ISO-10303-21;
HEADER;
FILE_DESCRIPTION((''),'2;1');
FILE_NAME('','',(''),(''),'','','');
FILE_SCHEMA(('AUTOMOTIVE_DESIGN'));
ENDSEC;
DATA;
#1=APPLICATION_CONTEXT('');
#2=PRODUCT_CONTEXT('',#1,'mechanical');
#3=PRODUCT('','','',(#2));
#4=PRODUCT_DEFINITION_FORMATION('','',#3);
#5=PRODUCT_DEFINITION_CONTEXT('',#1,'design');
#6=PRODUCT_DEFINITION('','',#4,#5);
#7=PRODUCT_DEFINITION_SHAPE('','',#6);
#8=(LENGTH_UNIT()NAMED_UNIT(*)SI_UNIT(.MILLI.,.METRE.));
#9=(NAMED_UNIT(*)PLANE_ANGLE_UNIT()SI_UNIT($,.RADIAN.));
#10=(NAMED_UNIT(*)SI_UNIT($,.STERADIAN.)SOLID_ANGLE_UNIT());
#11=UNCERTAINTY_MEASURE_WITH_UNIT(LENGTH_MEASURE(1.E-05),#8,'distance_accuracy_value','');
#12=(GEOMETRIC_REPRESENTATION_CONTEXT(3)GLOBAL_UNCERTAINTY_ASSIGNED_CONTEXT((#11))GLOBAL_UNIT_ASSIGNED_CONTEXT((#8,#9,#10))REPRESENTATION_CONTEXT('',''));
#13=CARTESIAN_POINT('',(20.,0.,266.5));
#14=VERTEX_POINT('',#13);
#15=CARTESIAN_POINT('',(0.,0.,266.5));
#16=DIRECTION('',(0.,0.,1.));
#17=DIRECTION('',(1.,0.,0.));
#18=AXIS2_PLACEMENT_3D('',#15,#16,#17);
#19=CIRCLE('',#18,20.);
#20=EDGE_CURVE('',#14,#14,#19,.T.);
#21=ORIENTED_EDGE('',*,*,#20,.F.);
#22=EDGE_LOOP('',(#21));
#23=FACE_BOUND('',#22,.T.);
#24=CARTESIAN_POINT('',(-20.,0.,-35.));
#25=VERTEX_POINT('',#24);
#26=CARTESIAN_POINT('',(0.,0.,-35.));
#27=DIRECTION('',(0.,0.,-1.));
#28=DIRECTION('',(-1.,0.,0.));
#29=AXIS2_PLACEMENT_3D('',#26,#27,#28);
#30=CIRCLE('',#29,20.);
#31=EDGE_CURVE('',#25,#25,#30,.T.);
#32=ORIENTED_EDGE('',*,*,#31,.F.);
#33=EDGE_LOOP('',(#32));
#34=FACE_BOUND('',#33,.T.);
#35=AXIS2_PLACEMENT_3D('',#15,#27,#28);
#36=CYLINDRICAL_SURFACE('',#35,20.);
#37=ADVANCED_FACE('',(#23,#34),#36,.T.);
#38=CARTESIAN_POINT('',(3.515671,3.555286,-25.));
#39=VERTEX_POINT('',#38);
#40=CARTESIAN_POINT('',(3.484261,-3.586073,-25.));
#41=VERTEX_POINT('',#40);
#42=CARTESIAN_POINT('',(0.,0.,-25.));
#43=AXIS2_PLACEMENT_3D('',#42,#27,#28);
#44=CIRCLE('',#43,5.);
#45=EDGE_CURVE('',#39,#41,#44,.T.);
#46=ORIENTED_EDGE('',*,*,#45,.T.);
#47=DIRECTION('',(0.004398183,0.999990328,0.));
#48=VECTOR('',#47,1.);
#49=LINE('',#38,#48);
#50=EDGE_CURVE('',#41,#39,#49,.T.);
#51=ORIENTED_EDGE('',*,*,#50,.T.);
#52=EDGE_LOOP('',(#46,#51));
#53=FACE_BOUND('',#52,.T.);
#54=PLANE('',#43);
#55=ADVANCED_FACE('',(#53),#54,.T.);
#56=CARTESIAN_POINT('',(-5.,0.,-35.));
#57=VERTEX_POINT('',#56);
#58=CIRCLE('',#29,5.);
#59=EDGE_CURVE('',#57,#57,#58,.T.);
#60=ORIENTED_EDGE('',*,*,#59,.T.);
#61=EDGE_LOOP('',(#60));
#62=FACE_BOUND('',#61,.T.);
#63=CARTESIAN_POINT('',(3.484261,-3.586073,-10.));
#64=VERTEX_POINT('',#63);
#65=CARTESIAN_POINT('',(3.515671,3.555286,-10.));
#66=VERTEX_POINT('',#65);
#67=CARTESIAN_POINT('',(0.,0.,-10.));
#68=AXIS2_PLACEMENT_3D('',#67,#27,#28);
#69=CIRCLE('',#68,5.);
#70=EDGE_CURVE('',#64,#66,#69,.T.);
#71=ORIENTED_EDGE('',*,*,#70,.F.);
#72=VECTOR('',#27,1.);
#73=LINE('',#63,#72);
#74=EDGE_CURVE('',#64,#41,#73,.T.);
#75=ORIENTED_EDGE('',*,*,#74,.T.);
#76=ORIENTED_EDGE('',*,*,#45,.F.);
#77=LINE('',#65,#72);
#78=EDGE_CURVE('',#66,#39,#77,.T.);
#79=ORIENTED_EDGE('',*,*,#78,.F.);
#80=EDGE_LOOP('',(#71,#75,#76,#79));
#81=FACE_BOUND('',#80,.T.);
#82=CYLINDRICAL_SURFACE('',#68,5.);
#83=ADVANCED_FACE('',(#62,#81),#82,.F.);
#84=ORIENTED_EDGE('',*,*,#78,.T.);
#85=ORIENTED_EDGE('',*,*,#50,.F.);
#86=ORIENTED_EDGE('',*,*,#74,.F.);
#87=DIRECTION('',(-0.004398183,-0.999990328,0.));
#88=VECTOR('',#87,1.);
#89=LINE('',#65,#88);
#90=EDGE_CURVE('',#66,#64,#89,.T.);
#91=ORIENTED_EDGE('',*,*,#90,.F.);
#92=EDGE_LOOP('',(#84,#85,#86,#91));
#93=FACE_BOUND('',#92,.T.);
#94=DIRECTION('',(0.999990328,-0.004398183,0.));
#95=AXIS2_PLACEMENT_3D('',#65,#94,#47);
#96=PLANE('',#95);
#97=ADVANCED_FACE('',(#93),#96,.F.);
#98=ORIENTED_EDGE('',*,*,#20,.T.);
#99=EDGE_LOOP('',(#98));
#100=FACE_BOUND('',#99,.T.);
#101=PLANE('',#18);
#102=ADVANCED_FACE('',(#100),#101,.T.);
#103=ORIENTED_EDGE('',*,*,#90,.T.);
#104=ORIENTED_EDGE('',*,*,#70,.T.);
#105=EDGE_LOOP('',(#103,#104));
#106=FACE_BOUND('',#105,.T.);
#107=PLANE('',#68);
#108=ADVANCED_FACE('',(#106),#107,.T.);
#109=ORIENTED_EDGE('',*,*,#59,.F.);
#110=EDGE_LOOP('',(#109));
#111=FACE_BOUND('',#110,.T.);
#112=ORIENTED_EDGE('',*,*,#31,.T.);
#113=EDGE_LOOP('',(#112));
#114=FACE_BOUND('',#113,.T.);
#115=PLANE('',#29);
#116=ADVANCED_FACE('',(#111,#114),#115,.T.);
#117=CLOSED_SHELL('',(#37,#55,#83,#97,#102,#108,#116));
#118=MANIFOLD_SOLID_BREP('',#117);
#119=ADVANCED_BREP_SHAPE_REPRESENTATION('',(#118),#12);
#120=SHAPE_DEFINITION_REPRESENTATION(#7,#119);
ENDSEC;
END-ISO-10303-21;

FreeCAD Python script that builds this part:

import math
import FreeCAD as App
import Part
import Sketcher

doc = App.newDocument("Part")
body = doc.addObject("PartDesign::Body", "Body")

sketch1 = body.newObject("Sketcher::SketchObject", "Sketch")
sketch1.AttachmentSupport = (doc.getObject("XY_Plane"), [""])
sketch1.MapMode = "FlatFace"
sketch1.addGeometry(Part.Circle(App.Vector(0, 0, 0), App.Vector(0, 0, 1), 20), False)
sketch1.addConstraint([
    Sketcher.Constraint("Coincident", 0, 3, -1, 1),
    Sketcher.Constraint("Diameter", 0, 40.0),
])
pad1 = body.newObject("PartDesign::Pad", "Pad")
pad1.Profile = sketch1
pad1.Length = 266.5

sketch2 = body.newObject("Sketcher::SketchObject", "Sketch001")
sketch2.AttachmentSupport = (doc.getObject("XY_Plane"), [""])
sketch2.MapMode = "FlatFace"
sketch2.AttachmentOffset = App.Placement(App.Vector(0, 0, -35), App.Rotation())
sketch2.addGeometry(Part.Circle(App.Vector(0, 0, 0), App.Vector(0, 0, 1), 20), False)
sketch2.addConstraint([
    Sketcher.Constraint("Coincident", 0, 3, -1, 1),
    Sketcher.Constraint("Diameter", 0, 40.0),
])
pad2 = body.newObject("PartDesign::Pad", "Pad001")
pad2.Profile = sketch2
pad2.Length = 35

sketch3 = body.newObject("Sketcher::SketchObject", "Sketch002")
sketch3.AttachmentSupport = (doc.getObject("XY_Plane"), [""])
sketch3.MapMode = "FlatFace"
sketch3.AttachmentOffset = App.Placement(App.Vector(0, 0, -35), App.Rotation())
sketch3.addGeometry([
    Part.LineSegment(App.Vector(3.515671, 3.555286, 0), App.Vector(3.484261, -3.586073, 0)),
    Part.ArcOfCircle(Part.Circle(App.Vector(0, 0, 0), App.Vector(0, 0, 1), 5), math.radians(45.320998), math.radians(314.175006)),
], False)
sketch3.addConstraint([
    Sketcher.Constraint("Coincident", 0, 1, 1, 1),
    Sketcher.Constraint("Coincident", 1, 2, 0, 2),
    Sketcher.Constraint("Coincident", 1, 3, -1, 1),
    Sketcher.Constraint("Radius", 1, 5.0),
    Sketcher.Constraint("Distance", 0, 7.141428),
    Sketcher.Constraint("DistanceX", -1, 1, 0, 1, 3.515671),
])
pocket1 = body.newObject("PartDesign::Pocket", "Pocket")
pocket1.Profile = sketch3
pocket1.Length = 25
pocket1.Reversed = True

sketch4 = body.newObject("Sketcher::SketchObject", "Sketch003")
sketch4.AttachmentSupport = (doc.getObject("XY_Plane"), [""])
sketch4.MapMode = "FlatFace"
sketch4.AttachmentOffset = App.Placement(App.Vector(0, 0, -35), App.Rotation())
sketch4.addGeometry(Part.Circle(App.Vector(0, 0, 0), App.Vector(0, 0, 1), 5), False)
sketch4.addConstraint([
    Sketcher.Constraint("Coincident", 0, 3, -1, 1),
    Sketcher.Constraint("Diameter", 0, 10.0),
])
pocket2 = body.newObject("PartDesign::Pocket", "Pocket001")
pocket2.Profile = sketch4
pocket2.Length = 10
pocket2.Reversed = True

doc.recompute()
